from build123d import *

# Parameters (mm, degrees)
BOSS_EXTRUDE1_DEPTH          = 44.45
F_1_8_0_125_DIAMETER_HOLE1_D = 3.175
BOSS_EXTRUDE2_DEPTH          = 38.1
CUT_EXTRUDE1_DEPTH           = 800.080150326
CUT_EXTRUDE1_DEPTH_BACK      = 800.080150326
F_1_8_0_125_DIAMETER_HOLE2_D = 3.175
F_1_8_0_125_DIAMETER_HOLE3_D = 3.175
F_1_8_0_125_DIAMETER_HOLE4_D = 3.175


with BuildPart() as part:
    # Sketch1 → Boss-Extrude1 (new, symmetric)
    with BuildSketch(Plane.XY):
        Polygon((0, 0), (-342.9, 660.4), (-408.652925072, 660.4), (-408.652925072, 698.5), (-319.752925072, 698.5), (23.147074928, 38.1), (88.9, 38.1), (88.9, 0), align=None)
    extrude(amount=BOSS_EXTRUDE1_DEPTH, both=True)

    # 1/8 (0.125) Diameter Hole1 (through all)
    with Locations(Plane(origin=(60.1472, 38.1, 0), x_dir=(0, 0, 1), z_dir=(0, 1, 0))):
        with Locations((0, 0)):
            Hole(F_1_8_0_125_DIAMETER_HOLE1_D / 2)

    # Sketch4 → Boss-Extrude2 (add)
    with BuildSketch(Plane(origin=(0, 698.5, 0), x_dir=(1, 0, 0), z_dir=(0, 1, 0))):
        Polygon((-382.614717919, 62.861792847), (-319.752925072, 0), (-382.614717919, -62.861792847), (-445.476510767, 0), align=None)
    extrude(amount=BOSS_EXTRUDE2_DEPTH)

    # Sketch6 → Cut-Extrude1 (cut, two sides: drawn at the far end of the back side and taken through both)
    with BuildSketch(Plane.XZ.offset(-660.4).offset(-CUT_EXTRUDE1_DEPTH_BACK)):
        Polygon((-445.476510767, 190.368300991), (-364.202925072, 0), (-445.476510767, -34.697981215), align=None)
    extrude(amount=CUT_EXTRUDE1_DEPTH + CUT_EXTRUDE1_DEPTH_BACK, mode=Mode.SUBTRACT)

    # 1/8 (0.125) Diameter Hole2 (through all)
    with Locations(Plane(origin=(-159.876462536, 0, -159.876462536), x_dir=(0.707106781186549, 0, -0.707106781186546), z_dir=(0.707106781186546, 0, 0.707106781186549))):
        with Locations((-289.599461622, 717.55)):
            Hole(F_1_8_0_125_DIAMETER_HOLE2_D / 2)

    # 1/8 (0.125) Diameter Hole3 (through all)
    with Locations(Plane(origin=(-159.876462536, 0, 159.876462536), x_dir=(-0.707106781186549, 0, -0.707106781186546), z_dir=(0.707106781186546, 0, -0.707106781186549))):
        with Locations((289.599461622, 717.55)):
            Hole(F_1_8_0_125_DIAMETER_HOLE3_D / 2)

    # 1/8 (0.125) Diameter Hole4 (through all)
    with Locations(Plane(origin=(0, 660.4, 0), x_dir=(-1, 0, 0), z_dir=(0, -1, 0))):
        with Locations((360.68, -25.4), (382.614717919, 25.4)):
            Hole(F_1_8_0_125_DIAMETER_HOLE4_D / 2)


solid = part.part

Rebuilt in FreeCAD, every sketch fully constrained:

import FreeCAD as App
import Part
import Sketcher
Q = App.Units.Quantity

doc = App.newDocument("Part")
body = doc.addObject("PartDesign::Body", "Body")

sketch1 = body.newObject("Sketcher::SketchObject", "Sketch")
sketch1.AttachmentSupport = (doc.getObject("XY_Plane"), [""])
sketch1.MapMode = "FlatFace"
sketch1.addGeometry(Part.LineSegment(App.Vector(-343, 660, 0), App.Vector(0, 0, 0)), False)
sketch1.addGeometry(Part.LineSegment(App.Vector(0, 0, 0), App.Vector(89, 0, 0)), False)
sketch1.addGeometry(Part.LineSegment(App.Vector(89, 0, 0), App.Vector(89, 38, 0)), False)
sketch1.addGeometry(Part.LineSegment(App.Vector(89, 38, 0), App.Vector(23, 38, 0)), False)
sketch1.addGeometry(Part.LineSegment(App.Vector(23, 38, 0), App.Vector(-320, 698, 0)), False)
sketch1.addGeometry(Part.LineSegment(App.Vector(-320, 698, 0), App.Vector(-409, 698, 0)), False)
sketch1.addGeometry(Part.LineSegment(App.Vector(-409, 698, 0), App.Vector(-409, 660, 0)), False)
sketch1.addGeometry(Part.LineSegment(App.Vector(-409, 660, 0), App.Vector(-343, 660, 0)), False)
sketch1.addConstraint(Sketcher.Constraint("Coincident", 0, 2, 1, 1))
sketch1.addConstraint(Sketcher.Constraint("Coincident", 1, 2, 2, 1))
sketch1.addConstraint(Sketcher.Constraint("Coincident", 2, 2, 3, 1))
sketch1.addConstraint(Sketcher.Constraint("Coincident", 3, 2, 4, 1))
sketch1.addConstraint(Sketcher.Constraint("Coincident", 4, 2, 5, 1))
sketch1.addConstraint(Sketcher.Constraint("Coincident", 5, 2, 6, 1))
sketch1.addConstraint(Sketcher.Constraint("Coincident", 6, 2, 7, 1))
sketch1.addConstraint(Sketcher.Constraint("Coincident", 7, 2, 0, 1))
sketch1.addConstraint(Sketcher.Constraint("Horizontal", 1))
sketch1.addConstraint(Sketcher.Constraint("Vertical", 2))
sketch1.addConstraint(Sketcher.Constraint("Horizontal", 3))
sketch1.addConstraint(Sketcher.Constraint("Horizontal", 5))
sketch1.addConstraint(Sketcher.Constraint("Vertical", 6))
sketch1.addConstraint(Sketcher.Constraint("Horizontal", 7))
sketch1.addConstraint(Sketcher.Constraint("Coincident", 0, 2, -1, 1))
sketch1.addConstraint(Sketcher.Constraint("Parallel", 0, 4))
sketch1.addConstraint(Sketcher.Constraint("Equal", 1, 5))
sketch1.addConstraint(Sketcher.Constraint("Equal", 3, 7))
sketch1.addConstraint(Sketcher.Constraint("DistanceX", 1, 1, 1, 2, Q("3.5 in")))
sketch1.addConstraint(Sketcher.Constraint("DistanceY", 2, 1, 2, 2, Q("1.5 in")))
sketch1.addConstraint(Sketcher.Constraint("DistanceY", -1, 1, 6, 2, Q("26 in")))
sketch1.addConstraint(Sketcher.Constraint("DistanceX", 5, 2, 3, 2, Q("17 in")))
sketch1.addConstraint(Sketcher.Constraint("DistanceX", 3, 2, 3, 1, Q("65.752925 mm")))
pad1 = body.newObject("PartDesign::Pad", "Pad")
pad1.Profile = sketch1
pad1.Length = Q("3.5 in")
pad1.Midplane = True

sketch2 = body.newObject("Sketcher::SketchObject", "Sketch001")
sketch2.AttachmentSupport = (doc.getObject("XZ_Plane"), [""])
sketch2.MapMode = "FlatFace"
sketch2.AttachmentOffset = App.Placement(App.Vector(0, 0, -1.5 * 25.4), App.Rotation())
sketch2.addGeometry(Part.Circle(App.Vector(60.1, 0, 0), App.Vector(0, 0, 1), 1.6), False)
sketch2.addConstraint(Sketcher.Constraint("PointOnObject", 0, 3, -1))
sketch2.addConstraint(Sketcher.Constraint("Diameter", 0, Q("0.125 in")))
sketch2.addConstraint(Sketcher.Constraint("DistanceX", -1, 1, 0, 3, Q("2.368 in")))
doc.recompute()
hole = body.newObject("PartDesign::Hole", "Hole")
hole.Profile = sketch2
hole.ThreadType = "None"
hole.Diameter = Q("0.125 in")
hole.DepthType = "ThroughAll"
hole.Reversed = True

sketch3 = body.newObject("Sketcher::SketchObject", "Sketch002")
sketch3.AttachmentSupport = (doc.getObject("XZ_Plane"), [""])
sketch3.MapMode = "FlatFace"
sketch3.AttachmentOffset = App.Placement(App.Vector(0, 0, -27.5 * 25.4), App.Rotation())
sketch3.addGeometry(Part.LineSegment(App.Vector(-320, 0, 0), App.Vector(-383, -63, 0)), False)
sketch3.addGeometry(Part.LineSegment(App.Vector(-383, -63, 0), App.Vector(-445, 0, 0)), False)
sketch3.addGeometry(Part.LineSegment(App.Vector(-445, 0, 0), App.Vector(-383, 63, 0)), False)
sketch3.addGeometry(Part.LineSegment(App.Vector(-383, 63, 0), App.Vector(-320, 0, 0)), False)
sketch3.addConstraint(Sketcher.Constraint("Coincident", 0, 2, 1, 1))
sketch3.addConstraint(Sketcher.Constraint("Coincident", 1, 2, 2, 1))
sketch3.addConstraint(Sketcher.Constraint("Coincident", 2, 2, 3, 1))
sketch3.addConstraint(Sketcher.Constraint("Coincident", 3, 2, 0, 1))
sketch3.addConstraint(Sketcher.Constraint("Symmetric", 0, 2, 2, 2, -1))
sketch3.addConstraint(Sketcher.Constraint("PointOnObject", 1, 2, -1))
sketch3.addConstraint(Sketcher.Constraint("PointOnObject", 3, 2, -1))
sketch3.addConstraint(Sketcher.Constraint("Perpendicular", 0, 1))
sketch3.addConstraint(Sketcher.Constraint("Perpendicular", 1, 2))
sketch3.addConstraint(Sketcher.Constraint("Distance", 0, Q("3.5 in")))
sketch3.addConstraint(Sketcher.Constraint("DistanceX", 1, 2, -1, 1, Q("445.476511 mm")))
pad2 = body.newObject("PartDesign::Pad", "Pad001")
pad2.Profile = sketch3
pad2.Length = Q("1.5 in")
pad2.Reversed = True

sketch4 = body.newObject("Sketcher::SketchObject", "Sketch003")
sketch4.AttachmentSupport = (doc.getObject("XZ_Plane"), [""])
sketch4.MapMode = "FlatFace"
sketch4.AttachmentOffset = App.Placement(App.Vector(0, 0, -26 * 25.4), App.Rotation())
sketch4.addGeometry(Part.LineSegment(App.Vector(-364, 0, 0), App.Vector(-445, 190, 0)), False)
sketch4.addGeometry(Part.LineSegment(App.Vector(-445, 190, 0), App.Vector(-445, -35, 0)), False)
sketch4.addGeometry(Part.LineSegment(App.Vector(-445, -35, 0), App.Vector(-364, 0, 0)), False)
sketch4.addConstraint(Sketcher.Constraint("Coincident", 0, 2, 1, 1))
sketch4.addConstraint(Sketcher.Constraint("Coincident", 1, 2, 2, 1))
sketch4.addConstraint(Sketcher.Constraint("Coincident", 2, 2, 0, 1))
sketch4.addConstraint(Sketcher.Constraint("Vertical", 1))
sketch4.addConstraint(Sketcher.Constraint("PointOnObject", 2, 2, -1))
sketch4.addConstraint(Sketcher.Constraint("Perpendicular", 0, 2))
sketch4.addConstraint(Sketcher.Constraint("DistanceY", -1, 1, 0, 2, Q("190.368301 mm")))
sketch4.addConstraint(Sketcher.Constraint("Distance", 0, Q("206.991511 mm")))
sketch4.addConstraint(Sketcher.Constraint("DistanceX", 0, 2, -1, 1, Q("445.476511 mm")))
pocket1 = body.newObject("PartDesign::Pocket", "Pocket")
pocket1.Profile = sketch4
pocket1.Type = "ThroughAll"
pocket1.Midplane = True

sketch5 = body.newObject("Sketcher::SketchObject", "Sketch004")
sketch5.Placement = App.Placement(App.Vector(-159.876463, 0, -159.876463), App.Rotation(App.Vector(0.707106781, 0, -0.707106781), App.Vector(0, 0.999999999, 0), App.Vector(0.707106781, 0, 0.707106781), "ZXY"))
sketch5.addGeometry(Part.Circle(App.Vector(-289.6, 717.5, 0), App.Vector(0, 0, 1), 1.6), False)
sketch5.addConstraint(Sketcher.Constraint("Diameter", 0, Q("0.125 in")))
sketch5.addConstraint(Sketcher.Constraint("DistanceY", -1, 1, 0, 3, Q("28.25 in")))
sketch5.addConstraint(Sketcher.Constraint("DistanceX", 0, 3, -1, 1, Q("289.599461 mm")))
doc.recompute()
hole2 = body.newObject("PartDesign::Hole", "Hole001")
hole2.Profile = sketch5
hole2.ThreadType = "None"
hole2.Diameter = Q("0.125 in")
hole2.DepthType = "ThroughAll"

sketch6 = body.newObject("Sketcher::SketchObject", "Sketch005")
sketch6.Placement = App.Placement(App.Vector(-159.876463, 0, 159.876463), App.Rotation(App.Vector(-0.707106781, 0, -0.707106781), App.Vector(0, 0.999999999, 0), App.Vector(0.707106781, 0, -0.707106781), "ZXY"))
sketch6.addGeometry(Part.Circle(App.Vector(289.6, 717.5, 0), App.Vector(0, 0, 1), 1.6), False)
sketch6.addConstraint(Sketcher.Constraint("Diameter", 0, Q("0.125 in")))
sketch6.addConstraint(Sketcher.Constraint("DistanceY", -1, 1, 0, 3, Q("28.25 in")))
sketch6.addConstraint(Sketcher.Constraint("DistanceX", -1, 1, 0, 3, Q("289.599461 mm")))
doc.recompute()
hole3 = body.newObject("PartDesign::Hole", "Hole002")
hole3.Profile = sketch6
hole3.ThreadType = "None"
hole3.Diameter = Q("0.125 in")
hole3.DepthType = "ThroughAll"

sketch7 = body.newObject("Sketcher::SketchObject", "Sketch006")
sketch7.AttachmentSupport = (doc.getObject("XZ_Plane"), [""])
sketch7.MapMode = "FlatFace"
sketch7.AttachmentOffset = App.Placement(App.Vector(0, 0, -26 * 25.4), App.Rotation())
sketch7.addGeometry(Part.Circle(App.Vector(-360.7, 25.4, 0), App.Vector(0, 0, 1), 1.6), False)
sketch7.addGeometry(Part.Circle(App.Vector(-382.6, -25.4, 0), App.Vector(0, 0, 1), 1.6), False)
sketch7.addConstraint(Sketcher.Constraint("Equal", 0, 1))
sketch7.addConstraint(Sketcher.Constraint("Diameter", 0, Q("0.125 in")))
sketch7.addConstraint(Sketcher.Constraint("DistanceY", -1, 1, 0, 3, Q("1 in")))
sketch7.addConstraint(Sketcher.Constraint("DistanceY", 1, 3, -1, 1, Q("1 in")))
sketch7.addConstraint(Sketcher.Constraint("DistanceX", 0, 3, -1, 1, Q("14.2 in")))
sketch7.addConstraint(Sketcher.Constraint("DistanceX", 1, 3, -1, 1, Q("382.614718 mm")))
doc.recompute()
hole4 = body.newObject("PartDesign::Hole", "Hole003")
hole4.Profile = sketch7
hole4.ThreadType = "None"
hole4.Diameter = Q("0.125 in")
hole4.DepthType = "ThroughAll"

doc.recompute()
